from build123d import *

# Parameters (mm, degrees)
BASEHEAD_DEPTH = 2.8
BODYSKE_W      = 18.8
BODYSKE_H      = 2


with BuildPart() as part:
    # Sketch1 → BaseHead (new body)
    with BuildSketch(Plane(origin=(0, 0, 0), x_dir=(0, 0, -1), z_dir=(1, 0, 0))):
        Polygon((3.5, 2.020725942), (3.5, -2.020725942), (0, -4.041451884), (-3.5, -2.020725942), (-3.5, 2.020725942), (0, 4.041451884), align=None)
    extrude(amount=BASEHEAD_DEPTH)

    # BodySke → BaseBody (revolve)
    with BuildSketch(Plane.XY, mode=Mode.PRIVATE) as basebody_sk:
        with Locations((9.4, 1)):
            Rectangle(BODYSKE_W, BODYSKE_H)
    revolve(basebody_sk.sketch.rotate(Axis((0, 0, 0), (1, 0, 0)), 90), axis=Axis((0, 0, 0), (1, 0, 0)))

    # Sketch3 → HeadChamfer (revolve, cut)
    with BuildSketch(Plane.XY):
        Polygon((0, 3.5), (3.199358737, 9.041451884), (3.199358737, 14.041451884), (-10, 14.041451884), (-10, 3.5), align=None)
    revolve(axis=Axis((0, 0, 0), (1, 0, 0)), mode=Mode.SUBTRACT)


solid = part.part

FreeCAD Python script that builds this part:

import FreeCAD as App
import Part
import Sketcher

V = App.Vector
Q = App.Units.Quantity


def add_polygon(sketch, points):
    """Adds a closed chain of lines whose ends are joined by coincident constraints."""
    first, n = sketch.GeometryCount, len(points)
    for a, b in zip(points, points[1:] + points[:1]):
        sketch.addGeometry(Part.LineSegment(App.Vector(*a, 0), App.Vector(*b, 0)), False)
    for i in range(n):
        sketch.addConstraint(Sketcher.Constraint("Coincident", first + i, 2, first + (i + 1) % n, 1))

doc = App.newDocument("Part")
params = doc.addObject("Spreadsheet::Sheet", "Params")
for row, (alias, value) in enumerate([
    ("pad1_length", "2.8 mm"),
    ("sketch2_height", "2 mm"),
    ("sketch2_width", "18.8 mm"),
    ("revolution_angle", "360 deg"),
    ("sketch3_width", "10 mm"),
    ("sketch3_height", "5 mm"),
    ("groove_angle", "360 deg"),
], start=1):
    params.set(f"A{row}", alias)
    params.set(f"B{row}", "=" + value)
    params.setAlias(f"B{row}", alias)

body = doc.addObject("PartDesign::Body", "Body")

# Sketch on YZ plane
sketch1 = body.newObject("Sketcher::SketchObject", "Sketch")
sketch1.AttachmentSupport = (doc.getObject("YZ_Plane"), [""])
sketch1.MapMode = "FlatFace"
add_polygon(sketch1, [(-2.020726, -3.5), (2.020726, -3.5), (4.041452, 0), (2.020726, 3.5), (-2.020726, 3.5), (-4.041452, 0)])  # lines 0-5
sketch1.addConstraint([
    Sketcher.Constraint("Horizontal", 0),
    Sketcher.Constraint("Horizontal", 3),
    Sketcher.Constraint("Symmetric", 0, 2, 3, 2, -1, 1),
    Sketcher.Constraint("Symmetric", 1, 2, 4, 2, -1, 1),
    Sketcher.Constraint("PointOnObject", 1, 2, -1),
    Sketcher.Constraint("Parallel", 2, 5),
    Sketcher.Constraint("Vertical", 0, 2, 2, 2),
    Sketcher.Constraint("Angle", 1, Q("60 deg")),
    Sketcher.Constraint("DistanceY", 0, 2, 2, 2, Q("7 mm")),
    Sketcher.Constraint("DistanceX", 0, 1, 0, 2, Q("4.041452 mm")),
])
pad1 = body.newObject("PartDesign::Pad", "Pad")
pad1.Profile = sketch1
pad1.setExpression("Length", "Params.pad1_length")

# Sketch on XY plane
sketch2 = body.newObject("Sketcher::SketchObject", "Sketch001")
sketch2.AttachmentSupport = (doc.getObject("XY_Plane"), [""])
sketch2.MapMode = "FlatFace"
add_polygon(sketch2, [(0, 2), (0, 0), (18.8, 0), (18.8, 2)])  # lines 0-3
sketch2.addConstraint([
    Sketcher.Constraint("Vertical", 0),
    Sketcher.Constraint("Horizontal", 1),
    Sketcher.Constraint("Vertical", 2),
    Sketcher.Constraint("Horizontal", 3),
    Sketcher.Constraint("Coincident", 0, 2, -1, 1),
    Sketcher.Constraint("DistanceY", 0, 2, 0, 1, Q("2 mm")),
    Sketcher.Constraint("DistanceX", 1, 1, 1, 2, Q("18.8 mm")),
])
sketch2.setExpression("Constraints[9]", "Params.sketch2_height")
sketch2.setExpression("Constraints[10]", "Params.sketch2_width")
revolution = body.newObject("PartDesign::Revolution", "Revolution")
revolution.Profile = sketch2
revolution.ReferenceAxis = (sketch2, ["H_Axis"])
revolution.setExpression("Angle", "Params.revolution_angle")

# Sketch on XY plane
sketch3 = body.newObject("Sketcher::SketchObject", "Sketch002")
sketch3.AttachmentSupport = (doc.getObject("XY_Plane"), [""])
sketch3.MapMode = "FlatFace"
add_polygon(sketch3, [(0, 3.5), (3.199359, 9.041452), (3.199359, 14.041452), (-10, 14.041452), (-10, 3.5)])  # lines 0-4
sketch3.addConstraint([
    Sketcher.Constraint("Vertical", 1),
    Sketcher.Constraint("Horizontal", 2),
    Sketcher.Constraint("Vertical", 3),
    Sketcher.Constraint("Horizontal", 4),
    Sketcher.Constraint("PointOnObject", 4, 2, -2),
    Sketcher.Constraint("DistanceX", 4, 1, 4, 2, Q("10 mm")),
    Sketcher.Constraint("DistanceY", 1, 1, 1, 2, Q("5 mm")),
    Sketcher.Constraint("Angle", 0, Q("60 deg")),
    Sketcher.Constraint("DistanceY", -1, 1, 3, 2, Q("3.5 mm")),
    Sketcher.Constraint("DistanceX", 2, 2, 2, 1, Q("13.199359 mm")),
])
sketch3.setExpression("Constraints[10]", "Params.sketch3_width")
sketch3.setExpression("Constraints[11]", "Params.sketch3_height")
groove = body.newObject("PartDesign::Groove", "Groove")
groove.Profile = sketch3
groove.ReferenceAxis = (sketch3, ["H_Axis"])
groove.setExpression("Angle", "Params.groove_angle")

doc.recompute()
